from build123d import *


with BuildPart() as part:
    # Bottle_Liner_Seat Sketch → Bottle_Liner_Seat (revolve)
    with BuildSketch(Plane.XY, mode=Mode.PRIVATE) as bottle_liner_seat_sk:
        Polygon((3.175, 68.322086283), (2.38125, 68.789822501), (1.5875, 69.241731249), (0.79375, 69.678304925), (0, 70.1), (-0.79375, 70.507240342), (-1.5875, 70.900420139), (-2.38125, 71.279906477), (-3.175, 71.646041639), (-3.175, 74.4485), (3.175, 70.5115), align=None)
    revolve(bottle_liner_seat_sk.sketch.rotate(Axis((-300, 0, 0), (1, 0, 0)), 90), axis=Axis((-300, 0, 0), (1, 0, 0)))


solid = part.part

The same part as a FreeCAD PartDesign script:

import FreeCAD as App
import Part
import Sketcher
Q = App.Units.Quantity

doc = App.newDocument("Part")
params = doc.addObject("Spreadsheet::Sheet", "Params")
for row, (alias, value) in enumerate([
    ("revolution_angle", "360 deg"),
], start=1):
    params.set(f"A{row}", alias)
    params.set(f"B{row}", "=" + value)
    params.setAlias(f"B{row}", alias)

body = doc.addObject("PartDesign::Body", "Body")

# Sketch on XY plane
sketch1 = doc.addObject("Sketcher::SketchObject", "Sketch")
body.addObject(sketch1)
sketch1.AttachmentSupport = (doc.XY_Plane, [""])
sketch1.MapMode = "FlatFace"
sketch1.addGeometry([
    Part.LineSegment(App.Vector(2.38125, 68.789823, 0), App.Vector(3.175, 68.322086, 0)),  # 0
    Part.LineSegment(App.Vector(3.175, 68.322086, 0), App.Vector(3.175, 70.5115, 0)),  # 1
    Part.LineSegment(App.Vector(3.175, 70.5115, 0), App.Vector(-3.175, 74.4485, 0)),  # 2
    Part.LineSegment(App.Vector(-3.175, 74.4485, 0), App.Vector(-3.175, 71.646042, 0)),  # 3
    Part.LineSegment(App.Vector(-3.175, 71.646042, 0), App.Vector(-2.38125, 71.279906, 0)),  # 4
    Part.LineSegment(App.Vector(-2.38125, 71.279906, 0), App.Vector(-1.5875, 70.90042, 0)),  # 5
    Part.LineSegment(App.Vector(-1.5875, 70.90042, 0), App.Vector(-0.79375, 70.50724, 0)),  # 6
    Part.LineSegment(App.Vector(-0.79375, 70.50724, 0), App.Vector(0, 70.1, 0)),  # 7
    Part.LineSegment(App.Vector(0, 70.1, 0), App.Vector(0.79375, 69.678305, 0)),  # 8
    Part.LineSegment(App.Vector(0.79375, 69.678305, 0), App.Vector(1.5875, 69.241731, 0)),  # 9
    Part.LineSegment(App.Vector(1.5875, 69.241731, 0), App.Vector(2.38125, 68.789823, 0)),  # 10
], False)
sketch1.addConstraint([
    Sketcher.Constraint("Coincident", 0, 2, 1, 1),
    Sketcher.Constraint("Coincident", 1, 2, 2, 1),
    Sketcher.Constraint("Coincident", 2, 2, 3, 1),
    Sketcher.Constraint("Coincident", 3, 2, 4, 1),
    Sketcher.Constraint("Coincident", 4, 2, 5, 1),
    Sketcher.Constraint("Coincident", 5, 2, 6, 1),
    Sketcher.Constraint("Coincident", 6, 2, 7, 1),
    Sketcher.Constraint("Coincident", 7, 2, 8, 1),
    Sketcher.Constraint("Coincident", 8, 2, 9, 1),
    Sketcher.Constraint("Coincident", 9, 2, 10, 1),
    Sketcher.Constraint("Coincident", 10, 2, 0, 1),
    Sketcher.Constraint("Vertical", 1),
    Sketcher.Constraint("Vertical", 3),
    Sketcher.Constraint("PointOnObject", 7, 2, -2),
    Sketcher.Constraint("DistanceY", -1, 1, 7, 2, Q("70.1 mm")),
    Sketcher.Constraint("DistanceX", 2, 2, 1, 2, Q("6.35 mm")),
    Sketcher.Constraint("DistanceX", -1, 1, 0, 2, Q("3.175 mm")),
    Sketcher.Constraint("DistanceY", 1, 2, 2, 2, Q("3.937 mm")),
    Sketcher.Constraint("Distance", 5, Q("0.879801 mm")),
    Sketcher.Constraint("DistanceY", 3, 2, 3, 1, Q("2.802458 mm")),
    Sketcher.Constraint("DistanceY", -1, 1, 1, 2, Q("70.5115 mm")),
    Sketcher.Constraint("DistanceX", 5, 2, -1, 1, Q("1.5875 mm")),
    Sketcher.Constraint("DistanceX", -1, 1, 9, 2, Q("1.5875 mm")),
    Sketcher.Constraint("DistanceX", 4, 2, 6, 2, Q("1.5875 mm")),
    Sketcher.Constraint("DistanceY", 6, 2, 3, 2, Q("1.138801 mm")),
    Sketcher.Constraint("DistanceX", 6, 2, 8, 2, Q("1.5875 mm")),
    Sketcher.Constraint("DistanceX", 8, 2, 10, 2, Q("1.5875 mm")),
    Sketcher.Constraint("Distance", 9, Q("0.905889 mm")),
    Sketcher.Constraint("Distance", 10, Q("0.913379 mm")),
    Sketcher.Constraint("DistanceY", 1, 1, 1, 2, Q("2.189414 mm")),
    Sketcher.Constraint("DistanceX", 4, 2, -1, 1, Q("2.38125 mm")),
    Sketcher.Constraint("DistanceY", -1, 1, 5, 2, Q("70.90042 mm")),
    Sketcher.Constraint("DistanceY", -1, 1, 9, 2, Q("69.241731 mm")),
])
revolution = doc.addObject("PartDesign::Revolution", "Revolution")
body.addObject(revolution)
revolution.Profile = sketch1
revolution.ReferenceAxis = (sketch1, ["H_Axis"])
revolution.setExpression("Angle", "Params.revolution_angle")

doc.recompute()
